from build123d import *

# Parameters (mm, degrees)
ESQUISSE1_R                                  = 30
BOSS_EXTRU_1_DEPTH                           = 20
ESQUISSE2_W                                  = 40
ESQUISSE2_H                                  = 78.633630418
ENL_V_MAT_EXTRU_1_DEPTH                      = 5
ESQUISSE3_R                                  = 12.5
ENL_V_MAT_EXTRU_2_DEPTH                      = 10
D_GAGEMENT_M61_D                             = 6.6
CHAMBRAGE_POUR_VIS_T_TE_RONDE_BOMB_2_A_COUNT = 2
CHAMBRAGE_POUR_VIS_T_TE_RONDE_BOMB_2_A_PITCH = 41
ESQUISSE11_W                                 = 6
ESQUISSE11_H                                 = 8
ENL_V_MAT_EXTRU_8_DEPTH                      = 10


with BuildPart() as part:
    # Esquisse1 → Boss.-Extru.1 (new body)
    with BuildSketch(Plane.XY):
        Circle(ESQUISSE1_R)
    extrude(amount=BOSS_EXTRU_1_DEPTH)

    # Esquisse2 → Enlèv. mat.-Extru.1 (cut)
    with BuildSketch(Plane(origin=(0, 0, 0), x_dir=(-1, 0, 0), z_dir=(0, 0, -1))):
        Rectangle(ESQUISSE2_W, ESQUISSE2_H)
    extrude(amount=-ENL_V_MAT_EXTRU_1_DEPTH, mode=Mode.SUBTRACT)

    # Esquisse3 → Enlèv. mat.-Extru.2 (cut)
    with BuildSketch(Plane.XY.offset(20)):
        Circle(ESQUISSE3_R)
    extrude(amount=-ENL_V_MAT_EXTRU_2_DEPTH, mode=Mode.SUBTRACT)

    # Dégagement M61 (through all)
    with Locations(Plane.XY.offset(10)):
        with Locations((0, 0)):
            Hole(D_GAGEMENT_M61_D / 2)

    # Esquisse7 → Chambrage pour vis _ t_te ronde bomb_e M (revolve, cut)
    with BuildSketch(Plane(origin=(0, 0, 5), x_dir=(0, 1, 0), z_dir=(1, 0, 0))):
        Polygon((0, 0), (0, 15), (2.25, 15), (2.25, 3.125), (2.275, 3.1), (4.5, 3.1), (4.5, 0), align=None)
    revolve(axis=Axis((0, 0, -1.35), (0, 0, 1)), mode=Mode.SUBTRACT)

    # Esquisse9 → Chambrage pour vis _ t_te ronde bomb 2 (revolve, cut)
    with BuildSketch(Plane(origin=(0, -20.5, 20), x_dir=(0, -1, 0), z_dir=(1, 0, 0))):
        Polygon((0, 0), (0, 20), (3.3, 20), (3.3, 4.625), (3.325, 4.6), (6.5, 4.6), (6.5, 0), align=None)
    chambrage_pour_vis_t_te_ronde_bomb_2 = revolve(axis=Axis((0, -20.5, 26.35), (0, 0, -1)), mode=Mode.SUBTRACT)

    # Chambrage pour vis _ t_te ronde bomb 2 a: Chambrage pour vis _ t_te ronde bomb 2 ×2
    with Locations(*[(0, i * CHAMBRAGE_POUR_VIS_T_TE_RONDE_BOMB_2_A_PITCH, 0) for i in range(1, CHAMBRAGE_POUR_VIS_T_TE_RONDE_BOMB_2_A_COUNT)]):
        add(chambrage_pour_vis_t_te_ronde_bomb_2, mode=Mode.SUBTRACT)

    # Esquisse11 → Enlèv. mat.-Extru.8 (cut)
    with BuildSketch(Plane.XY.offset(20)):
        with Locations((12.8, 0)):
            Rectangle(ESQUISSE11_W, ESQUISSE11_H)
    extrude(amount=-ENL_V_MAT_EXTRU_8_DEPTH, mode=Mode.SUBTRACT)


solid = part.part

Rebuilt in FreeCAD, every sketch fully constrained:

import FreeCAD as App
import Part
import Sketcher

V = App.Vector
Q = App.Units.Quantity

doc = App.newDocument("Part")
body = doc.addObject("PartDesign::Body", "Body")

# Sketch on XY plane
sketch1 = body.newObject("Sketcher::SketchObject", "Sketch")
sketch1.AttachmentSupport = (doc.getObject("XY_Plane"), [""])
sketch1.MapMode = "FlatFace"
sketch1.addGeometry(Part.Circle(V(0, 0, 0), V(0, 0, 1), 30), False)
sketch1.addConstraint(Sketcher.Constraint("Coincident", 0, 3, -1, 1))
sketch1.addConstraint(Sketcher.Constraint("Diameter", 0, Q("60 mm")))
pad1 = body.newObject("PartDesign::Pad", "Pad")
pad1.Profile = sketch1
pad1.Length = 20

# Sketch on XY plane
sketch2 = body.newObject("Sketcher::SketchObject", "Sketch001")
sketch2.AttachmentSupport = (doc.getObject("XY_Plane"), [""])
sketch2.MapMode = "FlatFace"
sketch2.addGeometry(Part.LineSegment(V(20, 39, 0), V(20, -39, 0)), False)
sketch2.addGeometry(Part.LineSegment(V(20, -39, 0), V(-20, -39, 0)), False)
sketch2.addGeometry(Part.LineSegment(V(-20, -39, 0), V(-20, 39, 0)), False)
sketch2.addGeometry(Part.LineSegment(V(-20, 39, 0), V(20, 39, 0)), False)
sketch2.addConstraint(Sketcher.Constraint("Coincident", 0, 2, 1, 1))
sketch2.addConstraint(Sketcher.Constraint("Coincident", 1, 2, 2, 1))
sketch2.addConstraint(Sketcher.Constraint("Coincident", 2, 2, 3, 1))
sketch2.addConstraint(Sketcher.Constraint("Coincident", 3, 2, 0, 1))
sketch2.addConstraint(Sketcher.Constraint("Vertical", 0))
sketch2.addConstraint(Sketcher.Constraint("Horizontal", 1))
sketch2.addConstraint(Sketcher.Constraint("Vertical", 2))
sketch2.addConstraint(Sketcher.Constraint("Horizontal", 3))
sketch2.addConstraint(Sketcher.Constraint("Symmetric", 0, 2, 2, 2, -1, 1))
sketch2.addConstraint(Sketcher.Constraint("DistanceX", 1, 2, 1, 1, Q("40 mm")))
sketch2.addConstraint(Sketcher.Constraint("DistanceY", 0, 2, 0, 1, Q("78.63363 mm")))
pocket1 = body.newObject("PartDesign::Pocket", "Pocket")
pocket1.Profile = sketch2
pocket1.Length = 5
pocket1.Reversed = True

# Sketch on XY plane
sketch3 = body.newObject("Sketcher::SketchObject", "Sketch002")
sketch3.AttachmentSupport = (doc.getObject("XY_Plane"), [""])
sketch3.MapMode = "FlatFace"
sketch3.AttachmentOffset = App.Placement(V(0, 0, 20), App.Rotation())
sketch3.addGeometry(Part.Circle(V(0, 0, 0), V(0, 0, 1), 12), False)
sketch3.addConstraint(Sketcher.Constraint("Coincident", 0, 3, -1, 1))
sketch3.addConstraint(Sketcher.Constraint("Diameter", 0, Q("25 mm")))
pocket2 = body.newObject("PartDesign::Pocket", "Pocket001")
pocket2.Profile = sketch3
pocket2.Length = 10

# Sketch on XY plane
sketch4 = body.newObject("Sketcher::SketchObject", "Sketch003")
sketch4.AttachmentSupport = (doc.getObject("XY_Plane"), [""])
sketch4.MapMode = "FlatFace"
sketch4.AttachmentOffset = App.Placement(V(0, 0, 10), App.Rotation())
sketch4.addGeometry(Part.Circle(V(0, 0, 0), V(0, 0, 1), 3.3), False)
sketch4.addConstraint(Sketcher.Constraint("Coincident", 0, 3, -1, 1))
sketch4.addConstraint(Sketcher.Constraint("Diameter", 0, Q("6.6 mm")))
doc.recompute()
hole = body.newObject("PartDesign::Hole", "Hole")
hole.Profile = sketch4
hole.ThreadType = "None"
hole.Diameter = 6.6
hole.DepthType = "ThroughAll"

# Sketch on YZ plane
sketch5 = body.newObject("Sketcher::SketchObject", "Sketch004")
sketch5.AttachmentSupport = (doc.getObject("YZ_Plane"), [""])
sketch5.MapMode = "FlatFace"
sketch5.addGeometry(Part.LineSegment(V(0, 20, 0), V(0, 5, 0)), False)
sketch5.addGeometry(Part.LineSegment(V(0, 5, 0), V(4.5, 5, 0)), False)
sketch5.addGeometry(Part.LineSegment(V(4.5, 5, 0), V(4.5, 8.1, 0)), False)
sketch5.addGeometry(Part.LineSegment(V(4.5, 8.1, 0), V(2.275, 8.1, 0)), False)
sketch5.addGeometry(Part.LineSegment(V(2.275, 8.1, 0), V(2.25, 8.125, 0)), False)
sketch5.addGeometry(Part.LineSegment(V(2.25, 8.125, 0), V(2.25, 20, 0)), False)
sketch5.addGeometry(Part.LineSegment(V(2.25, 20, 0), V(0, 20, 0)), False)
sketch5.addConstraint(Sketcher.Constraint("Coincident", 0, 2, 1, 1))
sketch5.addConstraint(Sketcher.Constraint("Coincident", 1, 2, 2, 1))
sketch5.addConstraint(Sketcher.Constraint("Coincident", 2, 2, 3, 1))
sketch5.addConstraint(Sketcher.Constraint("Coincident", 3, 2, 4, 1))
sketch5.addConstraint(Sketcher.Constraint("Coincident", 4, 2, 5, 1))
sketch5.addConstraint(Sketcher.Constraint("Coincident", 5, 2, 6, 1))
sketch5.addConstraint(Sketcher.Constraint("Coincident", 6, 2, 0, 1))
sketch5.addConstraint(Sketcher.Constraint("Vertical", 0))
sketch5.addConstraint(Sketcher.Constraint("Horizontal", 1))
sketch5.addConstraint(Sketcher.Constraint("Vertical", 2))
sketch5.addConstraint(Sketcher.Constraint("Horizontal", 3))
sketch5.addConstraint(Sketcher.Constraint("Vertical", 5))
sketch5.addConstraint(Sketcher.Constraint("Horizontal", 6))
sketch5.addConstraint(Sketcher.Constraint("PointOnObject", 0, 2, -2))
sketch5.addConstraint(Sketcher.Constraint("DistanceY", 0, 2, 0, 1, Q("15 mm")))
sketch5.addConstraint(Sketcher.Constraint("Angle", 4, Q("135 deg")))
sketch5.addConstraint(Sketcher.Constraint("DistanceX", 1, 1, 1, 2, Q("4.5 mm")))
sketch5.addConstraint(Sketcher.Constraint("DistanceY", 2, 1, 2, 2, Q("3.1 mm")))
sketch5.addConstraint(Sketcher.Constraint("DistanceY", -1, 1, 0, 2, Q("5 mm")))
sketch5.addConstraint(Sketcher.Constraint("DistanceX", 6, 2, 6, 1, Q("2.25 mm")))
sketch5.addConstraint(Sketcher.Constraint("DistanceX", 3, 2, 3, 1, Q("2.225 mm")))
groove = body.newObject("PartDesign::Groove", "Groove")
groove.Profile = sketch5
groove.ReferenceAxis = (sketch5, ["V_Axis"])
groove.Angle = 360

# Sketch on YZ plane
sketch6 = body.newObject("Sketcher::SketchObject", "Sketch005")
sketch6.AttachmentSupport = (doc.getObject("YZ_Plane"), [""])
sketch6.MapMode = "FlatFace"
sketch6.addGeometry(Part.LineSegment(V(-20.5, 0, 0), V(-20.5, 20, 0)), False)
sketch6.addGeometry(Part.LineSegment(V(-20.5, 20, 0), V(-27, 20, 0)), False)
sketch6.addGeometry(Part.LineSegment(V(-27, 20, 0), V(-27, 15.4, 0)), False)
sketch6.addGeometry(Part.LineSegment(V(-27, 15.4, 0), V(-23.825, 15.4, 0)), False)
sketch6.addGeometry(Part.LineSegment(V(-23.825, 15.4, 0), V(-23.8, 15.375, 0)), False)
sketch6.addGeometry(Part.LineSegment(V(-23.8, 15.375, 0), V(-23.8, 0, 0)), False)
sketch6.addGeometry(Part.LineSegment(V(-23.8, 0, 0), V(-20.5, 0, 0)), False)
sketch6.addGeometry(Part.LineSegment(V(-20.5, 20, 0), V(-20.5, 0, 0)), True)  # axis
sketch6.addConstraint(Sketcher.Constraint("Coincident", 0, 2, 1, 1))
sketch6.addConstraint(Sketcher.Constraint("Coincident", 1, 2, 2, 1))
sketch6.addConstraint(Sketcher.Constraint("Coincident", 2, 2, 3, 1))
sketch6.addConstraint(Sketcher.Constraint("Coincident", 3, 2, 4, 1))
sketch6.addConstraint(Sketcher.Constraint("Coincident", 4, 2, 5, 1))
sketch6.addConstraint(Sketcher.Constraint("Coincident", 5, 2, 6, 1))
sketch6.addConstraint(Sketcher.Constraint("Coincident", 6, 2, 0, 1))
sketch6.addConstraint(Sketcher.Constraint("Vertical", 0))
sketch6.addConstraint(Sketcher.Constraint("Horizontal", 1))
sketch6.addConstraint(Sketcher.Constraint("Vertical", 2))
sketch6.addConstraint(Sketcher.Constraint("Horizontal", 3))
sketch6.addConstraint(Sketcher.Constraint("Vertical", 5))
sketch6.addConstraint(Sketcher.Constraint("Horizontal", 6))
sketch6.addConstraint(Sketcher.Constraint("Vertical", 7))
sketch6.addConstraint(Sketcher.Constraint("Coincident", 7, 1, 0, 2))
sketch6.addConstraint(Sketcher.Constraint("PointOnObject", 5, 2, -1))
sketch6.addConstraint(Sketcher.Constraint("PointOnObject", 7, 2, -1))
sketch6.addConstraint(Sketcher.Constraint("DistanceY", 0, 1, 0, 2, Q("20 mm")))
sketch6.addConstraint(Sketcher.Constraint("Angle", 4, Q("-45 deg")))
sketch6.addConstraint(Sketcher.Constraint("DistanceX", 1, 2, 1, 1, Q("6.5 mm")))
sketch6.addConstraint(Sketcher.Constraint("DistanceX", 6, 1, 6, 2, Q("3.3 mm")))
sketch6.addConstraint(Sketcher.Constraint("DistanceY", 2, 2, 2, 1, Q("4.6 mm")))
sketch6.addConstraint(Sketcher.Constraint("DistanceX", 1, 2, -1, 1, Q("27 mm")))
sketch6.addConstraint(Sketcher.Constraint("DistanceX", 3, 1, 3, 2, Q("3.175 mm")))
groove2 = body.newObject("PartDesign::Groove", "Groove001")
groove2.Profile = sketch6
groove2.ReferenceAxis = (sketch6, ["Axis0"])
groove2.Angle = 360
doc.recompute()

linearpattern = body.newObject("PartDesign::LinearPattern", "LinearPattern")
linearpattern.Originals = [groove2]
linearpattern.Direction = (doc.getObject("Y_Axis"), [""])
linearpattern.Mode = "offset"
linearpattern.Offset = 41
linearpattern.Occurrences = 2
body.Tip = linearpattern

# Sketch on XY plane
sketch7 = body.newObject("Sketcher::SketchObject", "Sketch006")
sketch7.AttachmentSupport = (doc.getObject("XY_Plane"), [""])
sketch7.MapMode = "FlatFace"
sketch7.AttachmentOffset = App.Placement(V(0, 0, 20), App.Rotation())
sketch7.addGeometry(Part.LineSegment(V(10, 4, 0), V(10, -4, 0)), False)
sketch7.addGeometry(Part.LineSegment(V(10, -4, 0), V(16, -4, 0)), False)
sketch7.addGeometry(Part.LineSegment(V(16, -4, 0), V(16, 4, 0)), False)
sketch7.addGeometry(Part.LineSegment(V(16, 4, 0), V(10, 4, 0)), False)
sketch7.addConstraint(Sketcher.Constraint("Coincident", 0, 2, 1, 1))
sketch7.addConstraint(Sketcher.Constraint("Coincident", 1, 2, 2, 1))
sketch7.addConstraint(Sketcher.Constraint("Coincident", 2, 2, 3, 1))
sketch7.addConstraint(Sketcher.Constraint("Coincident", 3, 2, 0, 1))
sketch7.addConstraint(Sketcher.Constraint("Vertical", 0))
sketch7.addConstraint(Sketcher.Constraint("Horizontal", 1))
sketch7.addConstraint(Sketcher.Constraint("Vertical", 2))
sketch7.addConstraint(Sketcher.Constraint("Horizontal", 3))
sketch7.addConstraint(Sketcher.Constraint("DistanceX", 1, 1, 1, 2, Q("6 mm")))
sketch7.addConstraint(Sketcher.Constraint("DistanceY", 0, 2, 0, 1, Q("8 mm")))
sketch7.addConstraint(Sketcher.Constraint("DistanceY", 0, 2, -1, 1, Q("4 mm")))
sketch7.addConstraint(Sketcher.Constraint("DistanceX", -1, 1, 0, 2, Q("9.8 mm")))
pocket3 = body.newObject("PartDesign::Pocket", "Pocket002")
pocket3.Profile = sketch7
pocket3.Length = 10

doc.recompute()
